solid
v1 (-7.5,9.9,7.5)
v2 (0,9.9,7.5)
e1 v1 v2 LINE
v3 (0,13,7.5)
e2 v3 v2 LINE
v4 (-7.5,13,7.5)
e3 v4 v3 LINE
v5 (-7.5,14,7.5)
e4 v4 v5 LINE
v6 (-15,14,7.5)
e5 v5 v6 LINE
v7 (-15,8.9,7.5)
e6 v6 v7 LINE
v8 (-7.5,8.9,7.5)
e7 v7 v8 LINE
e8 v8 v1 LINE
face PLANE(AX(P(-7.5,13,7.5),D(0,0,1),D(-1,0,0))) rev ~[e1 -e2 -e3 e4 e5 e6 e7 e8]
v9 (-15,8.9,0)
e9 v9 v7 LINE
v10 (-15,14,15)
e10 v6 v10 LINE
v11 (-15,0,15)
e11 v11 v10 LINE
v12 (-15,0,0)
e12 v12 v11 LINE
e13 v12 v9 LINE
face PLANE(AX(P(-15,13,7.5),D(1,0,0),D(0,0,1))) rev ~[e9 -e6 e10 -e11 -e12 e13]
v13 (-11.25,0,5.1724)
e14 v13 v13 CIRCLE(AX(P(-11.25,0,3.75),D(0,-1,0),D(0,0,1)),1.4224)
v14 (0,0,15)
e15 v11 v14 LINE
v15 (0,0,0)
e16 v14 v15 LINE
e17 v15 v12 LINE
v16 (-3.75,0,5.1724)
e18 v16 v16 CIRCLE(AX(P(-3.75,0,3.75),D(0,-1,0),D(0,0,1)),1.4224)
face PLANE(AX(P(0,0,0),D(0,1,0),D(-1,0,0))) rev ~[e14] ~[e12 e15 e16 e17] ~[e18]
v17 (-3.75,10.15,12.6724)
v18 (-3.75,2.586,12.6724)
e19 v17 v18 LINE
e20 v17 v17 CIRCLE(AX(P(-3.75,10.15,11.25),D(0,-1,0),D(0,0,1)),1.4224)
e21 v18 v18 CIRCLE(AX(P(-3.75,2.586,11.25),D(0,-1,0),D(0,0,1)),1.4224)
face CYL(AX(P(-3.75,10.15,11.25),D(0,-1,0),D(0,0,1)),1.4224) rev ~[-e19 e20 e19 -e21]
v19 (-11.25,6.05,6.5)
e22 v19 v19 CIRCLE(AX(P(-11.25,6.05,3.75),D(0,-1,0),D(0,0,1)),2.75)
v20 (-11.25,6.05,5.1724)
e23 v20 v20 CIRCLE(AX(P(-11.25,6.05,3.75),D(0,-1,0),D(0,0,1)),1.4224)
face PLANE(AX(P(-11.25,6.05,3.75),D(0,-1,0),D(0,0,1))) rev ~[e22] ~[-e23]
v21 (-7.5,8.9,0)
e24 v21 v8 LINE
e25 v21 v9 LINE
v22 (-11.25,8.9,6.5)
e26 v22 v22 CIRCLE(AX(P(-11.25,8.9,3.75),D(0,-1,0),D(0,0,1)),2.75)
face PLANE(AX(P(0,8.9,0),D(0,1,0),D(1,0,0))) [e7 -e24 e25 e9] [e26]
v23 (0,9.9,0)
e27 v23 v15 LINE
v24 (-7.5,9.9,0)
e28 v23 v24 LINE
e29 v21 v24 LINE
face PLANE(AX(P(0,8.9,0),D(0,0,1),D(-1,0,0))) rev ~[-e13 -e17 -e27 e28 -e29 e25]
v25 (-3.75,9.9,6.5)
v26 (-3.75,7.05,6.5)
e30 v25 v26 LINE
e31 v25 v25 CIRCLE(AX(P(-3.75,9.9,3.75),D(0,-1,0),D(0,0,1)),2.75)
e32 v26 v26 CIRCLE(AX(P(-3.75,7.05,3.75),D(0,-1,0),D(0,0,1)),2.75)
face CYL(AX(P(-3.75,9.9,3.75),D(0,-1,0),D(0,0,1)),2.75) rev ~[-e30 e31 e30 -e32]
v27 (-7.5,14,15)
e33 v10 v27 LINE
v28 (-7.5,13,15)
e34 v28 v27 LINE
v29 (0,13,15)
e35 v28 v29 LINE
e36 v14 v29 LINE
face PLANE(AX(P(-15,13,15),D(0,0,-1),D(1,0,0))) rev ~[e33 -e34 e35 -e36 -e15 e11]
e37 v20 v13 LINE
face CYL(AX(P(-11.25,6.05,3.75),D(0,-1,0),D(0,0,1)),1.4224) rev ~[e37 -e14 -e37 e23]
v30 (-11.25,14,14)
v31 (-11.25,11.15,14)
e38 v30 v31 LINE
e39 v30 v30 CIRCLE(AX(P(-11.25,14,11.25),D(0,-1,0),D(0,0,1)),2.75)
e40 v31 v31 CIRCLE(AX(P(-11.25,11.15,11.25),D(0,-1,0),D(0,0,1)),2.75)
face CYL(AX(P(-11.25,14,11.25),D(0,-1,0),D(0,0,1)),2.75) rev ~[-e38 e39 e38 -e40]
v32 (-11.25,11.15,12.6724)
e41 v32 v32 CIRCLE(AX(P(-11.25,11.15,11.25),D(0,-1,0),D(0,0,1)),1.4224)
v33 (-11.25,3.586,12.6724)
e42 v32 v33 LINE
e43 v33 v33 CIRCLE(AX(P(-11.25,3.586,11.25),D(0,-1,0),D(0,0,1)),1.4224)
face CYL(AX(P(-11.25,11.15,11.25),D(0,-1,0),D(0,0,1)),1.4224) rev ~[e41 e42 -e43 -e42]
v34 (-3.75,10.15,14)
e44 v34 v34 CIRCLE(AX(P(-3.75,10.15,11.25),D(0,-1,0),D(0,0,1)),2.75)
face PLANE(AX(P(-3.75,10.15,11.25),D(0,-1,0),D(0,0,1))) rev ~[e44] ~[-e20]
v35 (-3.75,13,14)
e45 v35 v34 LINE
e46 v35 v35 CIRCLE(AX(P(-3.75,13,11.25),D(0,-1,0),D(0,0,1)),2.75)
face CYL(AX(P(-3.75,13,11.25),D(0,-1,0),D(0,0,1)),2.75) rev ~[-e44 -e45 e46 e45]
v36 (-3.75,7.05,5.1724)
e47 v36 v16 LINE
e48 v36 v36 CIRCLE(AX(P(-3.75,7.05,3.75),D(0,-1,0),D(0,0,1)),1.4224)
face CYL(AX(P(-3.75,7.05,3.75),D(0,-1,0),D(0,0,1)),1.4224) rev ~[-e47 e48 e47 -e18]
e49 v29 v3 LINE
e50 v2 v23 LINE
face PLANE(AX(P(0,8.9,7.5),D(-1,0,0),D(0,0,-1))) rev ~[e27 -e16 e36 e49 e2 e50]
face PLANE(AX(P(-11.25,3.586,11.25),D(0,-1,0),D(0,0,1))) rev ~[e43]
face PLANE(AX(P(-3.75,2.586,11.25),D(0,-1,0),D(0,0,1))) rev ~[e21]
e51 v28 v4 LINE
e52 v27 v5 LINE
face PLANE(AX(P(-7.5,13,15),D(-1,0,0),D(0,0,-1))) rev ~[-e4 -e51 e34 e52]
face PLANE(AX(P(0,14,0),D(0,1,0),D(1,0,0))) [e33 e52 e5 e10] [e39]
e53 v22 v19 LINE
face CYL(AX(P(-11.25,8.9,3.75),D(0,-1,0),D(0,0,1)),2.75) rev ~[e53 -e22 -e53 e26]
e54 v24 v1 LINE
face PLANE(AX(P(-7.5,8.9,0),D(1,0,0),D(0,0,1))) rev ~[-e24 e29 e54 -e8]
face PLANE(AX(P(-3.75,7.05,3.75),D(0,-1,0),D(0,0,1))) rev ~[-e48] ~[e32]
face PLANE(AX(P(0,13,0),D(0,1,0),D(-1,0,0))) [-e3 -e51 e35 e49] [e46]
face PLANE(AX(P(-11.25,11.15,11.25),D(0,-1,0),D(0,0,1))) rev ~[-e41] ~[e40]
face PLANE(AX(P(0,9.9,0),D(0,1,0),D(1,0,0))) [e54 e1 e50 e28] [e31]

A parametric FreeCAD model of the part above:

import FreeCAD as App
import Part
import Sketcher
from FreeCAD import Vector


def add_polygon(sketch, points):
    """Adds a closed chain of lines whose ends are joined by coincident constraints."""
    first, n = sketch.GeometryCount, len(points)
    for a, b in zip(points, points[1:] + points[:1]):
        sketch.addGeometry(Part.LineSegment(App.Vector(*a, 0), App.Vector(*b, 0)), False)
    for i in range(n):
        sketch.addConstraint(Sketcher.Constraint("Coincident", first + i, 2, first + (i + 1) % n, 1))

doc = App.newDocument("Part")
params = doc.addObject("Spreadsheet::Sheet", "Params")
for row, (alias, value) in enumerate([
    ("sketch1_width", "15 mm"),
    ("pad1_length", "13 mm"),
    ("sketch2_width", "15 mm"),
    ("sketch2_height", "7.5 mm"),
    ("pocket1_length", "4.1 mm"),
    ("sketch3_width", "7.5 mm"),
    ("pad2_length", "1 mm"),
    ("sketch4_width", "7.5 mm"),
    ("pad3_length", "1 mm"),
    ("hole_diameter", "2.8448 mm"),
    ("hole_depth", "10.414 mm"),
    ("hole_cbore_diameter", "5.5 mm"),
    ("hole_cbore_depth", "2.85 mm"),
    ("hole2_diameter", "2.8448 mm"),
    ("hole2_depth", "10.414 mm"),
    ("hole2_cbore_diameter", "5.5 mm"),
    ("hole2_cbore_depth", "2.85 mm"),
    ("hole3_diameter", "2.8448 mm"),
    ("hole3_depth", "10.414 mm"),
    ("hole3_cbore_diameter", "5.5 mm"),
    ("hole3_cbore_depth", "2.85 mm"),
    ("hole4_diameter", "2.8448 mm"),
    ("hole4_depth", "10.414 mm"),
    ("hole4_cbore_diameter", "5.5 mm"),
    ("hole4_cbore_depth", "2.85 mm"),
], start=1):
    params.set(f"A{row}", alias)
    params.set(f"B{row}", "=" + value)
    params.setAlias(f"B{row}", alias)

body = doc.addObject("PartDesign::Body", "Body")

# Sketch on XZ plane
sketch1 = body.newObject("Sketcher::SketchObject", "Sketch")
sketch1.AttachmentSupport = (doc.getObject("XZ_Plane"), [""])
sketch1.MapMode = "FlatFace"
add_polygon(sketch1, [(-15, 0), (-15, 15), (0, 15), (0, 0)])  # lines 0-3
sketch1.addConstraint(Sketcher.Constraint("Vertical", 0))
sketch1.addConstraint(Sketcher.Constraint("Horizontal", 1))
sketch1.addConstraint(Sketcher.Constraint("Vertical", 2))
sketch1.addConstraint(Sketcher.Constraint("Horizontal", 3))
sketch1.addConstraint(Sketcher.Constraint("Coincident", 2, 2, -1, 1))
sketch1.addConstraint(Sketcher.Constraint("Equal", 3, 0))
sketch1.addConstraint(Sketcher.Constraint("DistanceX", 1, 1, 1, 2, 15.0))
sketch1.setExpression("Constraints[10]", "Params.sketch1_width")
pad1 = body.newObject("PartDesign::Pad", "Pad")
pad1.Profile = sketch1
pad1.setExpression("Length", "Params.pad1_length")
pad1.Reversed = True

# Sketch on XZ plane
sketch2 = body.newObject("Sketcher::SketchObject", "Sketch001")
sketch2.AttachmentSupport = (doc.getObject("XZ_Plane"), [""])
sketch2.MapMode = "FlatFace"
sketch2.AttachmentOffset = App.Placement(Vector(0, 0, -13), App.Rotation())
add_polygon(sketch2, [(-15, 0), (-15, 8), (0, 8), (0, 0)])  # lines 0-3
sketch2.addConstraint(Sketcher.Constraint("Vertical", 0))
sketch2.addConstraint(Sketcher.Constraint("Horizontal", 1))
sketch2.addConstraint(Sketcher.Constraint("Vertical", 2))
sketch2.addConstraint(Sketcher.Constraint("Horizontal", 3))
sketch2.addConstraint(Sketcher.Constraint("Coincident", 2, 2, -1, 1))
sketch2.addConstraint(Sketcher.Constraint("DistanceX", 1, 1, 1, 2, 15.0))
sketch2.addConstraint(Sketcher.Constraint("DistanceY", 0, 1, 0, 2, 7.5))
sketch2.setExpression("Constraints[9]", "Params.sketch2_width")
sketch2.setExpression("Constraints[10]", "Params.sketch2_height")
pocket1 = body.newObject("PartDesign::Pocket", "Pocket")
pocket1.Profile = sketch2
pocket1.setExpression("Length", "Params.pocket1_length")
pocket1.Reversed = True

# Sketch on XZ plane
sketch3 = body.newObject("Sketcher::SketchObject", "Sketch002")
sketch3.AttachmentSupport = (doc.getObject("XZ_Plane"), [""])
sketch3.MapMode = "FlatFace"
sketch3.AttachmentOffset = App.Placement(Vector(0, 0, -13), App.Rotation())
add_polygon(sketch3, [(-15, 8), (-15, 15), (-8, 15), (-8, 8)])  # lines 0-3
sketch3.addConstraint(Sketcher.Constraint("Vertical", 0))
sketch3.addConstraint(Sketcher.Constraint("Horizontal", 1))
sketch3.addConstraint(Sketcher.Constraint("Vertical", 2))
sketch3.addConstraint(Sketcher.Constraint("Horizontal", 3))
sketch3.addConstraint(Sketcher.Constraint("Equal", 3, 0))
sketch3.addConstraint(Sketcher.Constraint("DistanceX", 1, 1, 1, 2, 7.5))
sketch3.addConstraint(Sketcher.Constraint("DistanceX", 0, 2, -1, 1, 15.0))
sketch3.addConstraint(Sketcher.Constraint("DistanceY", -1, 1, 0, 2, 15.0))
sketch3.setExpression("Constraints[9]", "Params.sketch3_width")
pad2 = body.newObject("PartDesign::Pad", "Pad001")
pad2.Profile = sketch3
pad2.setExpression("Length", "Params.pad2_length")
pad2.Reversed = True

# Sketch on XZ plane
sketch4 = body.newObject("Sketcher::SketchObject", "Sketch003")
sketch4.AttachmentSupport = (doc.getObject("XZ_Plane"), [""])
sketch4.MapMode = "FlatFace"
sketch4.AttachmentOffset = App.Placement(Vector(0, 0, -8.9), App.Rotation())
add_polygon(sketch4, [(-8, 0), (-8, 8), (0, 8), (0, 0)])  # lines 0-3
sketch4.addConstraint(Sketcher.Constraint("Vertical", 0))
sketch4.addConstraint(Sketcher.Constraint("Horizontal", 1))
sketch4.addConstraint(Sketcher.Constraint("Vertical", 2))
sketch4.addConstraint(Sketcher.Constraint("Horizontal", 3))
sketch4.addConstraint(Sketcher.Constraint("Coincident", 2, 2, -1, 1))
sketch4.addConstraint(Sketcher.Constraint("Equal", 3, 0))
sketch4.addConstraint(Sketcher.Constraint("DistanceX", 1, 1, 1, 2, 7.5))
sketch4.setExpression("Constraints[10]", "Params.sketch4_width")
pad3 = body.newObject("PartDesign::Pad", "Pad002")
pad3.Profile = sketch4
pad3.setExpression("Length", "Params.pad3_length")
pad3.Reversed = True

# Sketch on XZ plane
sketch5 = body.newObject("Sketcher::SketchObject", "Sketch004")
sketch5.AttachmentSupport = (doc.getObject("XZ_Plane"), [""])
sketch5.MapMode = "FlatFace"
sketch5.AttachmentOffset = App.Placement(Vector(0, 0, -14), App.Rotation())
sketch5.addGeometry(Part.Circle(Vector(-11.2, 11.2, 0), Vector(0, 0, 1), 1.4), False)
sketch5.addConstraint(Sketcher.Constraint("Diameter", 0, 2.8448))
sketch5.addConstraint(Sketcher.Constraint("DistanceX", 0, 3, -1, 1, 11.25))
sketch5.addConstraint(Sketcher.Constraint("DistanceY", -1, 1, 0, 3, 11.25))
doc.recompute()
hole = body.newObject("PartDesign::Hole", "Hole")
hole.Profile = sketch5
hole.ThreadType = "None"
hole.setExpression("Diameter", "Params.hole_diameter")
hole.DepthType = "Dimension"
hole.setExpression("Depth", "Params.hole_depth")
hole.DrillPoint = "Flat"
hole.HoleCutType = "Counterbore"
hole.setExpression("HoleCutDiameter", "Params.hole_cbore_diameter")
hole.setExpression("HoleCutDepth", "Params.hole_cbore_depth")
hole.Reversed = True

# Sketch on XZ plane
sketch6 = body.newObject("Sketcher::SketchObject", "Sketch005")
sketch6.AttachmentSupport = (doc.getObject("XZ_Plane"), [""])
sketch6.MapMode = "FlatFace"
sketch6.AttachmentOffset = App.Placement(Vector(0, 0, -13), App.Rotation())
sketch6.addGeometry(Part.Circle(Vector(-3.8, 11.2, 0), Vector(0, 0, 1), 1.4), False)
sketch6.addConstraint(Sketcher.Constraint("Diameter", 0, 2.8448))
sketch6.addConstraint(Sketcher.Constraint("DistanceX", 0, 3, -1, 1, 3.75))
sketch6.addConstraint(Sketcher.Constraint("DistanceY", -1, 1, 0, 3, 11.25))
doc.recompute()
hole2 = body.newObject("PartDesign::Hole", "Hole001")
hole2.Profile = sketch6
hole2.ThreadType = "None"
hole2.setExpression("Diameter", "Params.hole2_diameter")
hole2.DepthType = "Dimension"
hole2.setExpression("Depth", "Params.hole2_depth")
hole2.DrillPoint = "Flat"
hole2.HoleCutType = "Counterbore"
hole2.setExpression("HoleCutDiameter", "Params.hole2_cbore_diameter")
hole2.setExpression("HoleCutDepth", "Params.hole2_cbore_depth")
hole2.Reversed = True

# Sketch on XZ plane
sketch7 = body.newObject("Sketcher::SketchObject", "Sketch006")
sketch7.AttachmentSupport = (doc.getObject("XZ_Plane"), [""])
sketch7.MapMode = "FlatFace"
sketch7.AttachmentOffset = App.Placement(Vector(0, 0, -8.9), App.Rotation())
sketch7.addGeometry(Part.Circle(Vector(-11.2, 3.8, 0), Vector(0, 0, 1), 1.4), False)
sketch7.addConstraint(Sketcher.Constraint("Diameter", 0, 2.8448))
sketch7.addConstraint(Sketcher.Constraint("DistanceX", 0, 3, -1, 1, 11.25))
sketch7.addConstraint(Sketcher.Constraint("DistanceY", -1, 1, 0, 3, 3.75))
doc.recompute()
hole3 = body.newObject("PartDesign::Hole", "Hole002")
hole3.Profile = sketch7
hole3.ThreadType = "None"
hole3.setExpression("Diameter", "Params.hole3_diameter")
hole3.DepthType = "Dimension"
hole3.setExpression("Depth", "Params.hole3_depth")
hole3.DrillPoint = "Flat"
hole3.HoleCutType = "Counterbore"
hole3.setExpression("HoleCutDiameter", "Params.hole3_cbore_diameter")
hole3.setExpression("HoleCutDepth", "Params.hole3_cbore_depth")
hole3.Reversed = True

# Sketch on XZ plane
sketch8 = body.newObject("Sketcher::SketchObject", "Sketch007")
sketch8.AttachmentSupport = (doc.getObject("XZ_Plane"), [""])
sketch8.MapMode = "FlatFace"
sketch8.AttachmentOffset = App.Placement(Vector(0, 0, -9.9), App.Rotation())
sketch8.addGeometry(Part.Circle(Vector(-3.8, 3.8, 0), Vector(0, 0, 1), 1.4), False)
sketch8.addConstraint(Sketcher.Constraint("Diameter", 0, 2.8448))
sketch8.addConstraint(Sketcher.Constraint("DistanceX", 0, 3, -1, 1, 3.75))
sketch8.addConstraint(Sketcher.Constraint("DistanceY", -1, 1, 0, 3, 3.75))
doc.recompute()
hole4 = body.newObject("PartDesign::Hole", "Hole003")
hole4.Profile = sketch8
hole4.ThreadType = "None"
hole4.setExpression("Diameter", "Params.hole4_diameter")
hole4.DepthType = "Dimension"
hole4.setExpression("Depth", "Params.hole4_depth")
hole4.DrillPoint = "Flat"
hole4.HoleCutType = "Counterbore"
hole4.setExpression("HoleCutDiameter", "Params.hole4_cbore_diameter")
hole4.setExpression("HoleCutDepth", "Params.hole4_cbore_depth")
hole4.Reversed = True

doc.recompute()
